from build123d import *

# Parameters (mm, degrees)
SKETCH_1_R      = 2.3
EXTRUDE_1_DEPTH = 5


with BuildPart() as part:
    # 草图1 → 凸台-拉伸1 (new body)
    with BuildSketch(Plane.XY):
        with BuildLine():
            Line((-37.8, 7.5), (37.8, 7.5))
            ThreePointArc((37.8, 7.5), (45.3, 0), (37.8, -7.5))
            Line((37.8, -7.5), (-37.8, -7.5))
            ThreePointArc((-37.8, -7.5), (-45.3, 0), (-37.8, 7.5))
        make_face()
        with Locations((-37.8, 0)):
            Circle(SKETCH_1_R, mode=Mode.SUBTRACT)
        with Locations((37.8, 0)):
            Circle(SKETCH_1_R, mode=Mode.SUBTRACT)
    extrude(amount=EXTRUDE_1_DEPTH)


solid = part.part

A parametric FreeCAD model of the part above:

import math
import FreeCAD as App
import Part
import Sketcher

V = App.Vector

doc = App.newDocument("Part")
body = doc.addObject("PartDesign::Body", "Body")

sketch1 = body.newObject("Sketcher::SketchObject", "Sketch")
sketch1.AttachmentSupport = (doc.getObject("XY_Plane"), [""])
sketch1.MapMode = "FlatFace"
sketch1.addGeometry(Part.LineSegment(V(37.8, 7.5, 0), V(-37.8, 7.5, 0)), False)
sketch1.addGeometry(Part.ArcOfCircle(Part.Circle(V(-37.8, 0, 0), V(0, 0, 1), 7.5), math.radians(90), math.radians(270)), False)
sketch1.addGeometry(Part.LineSegment(V(-37.8, -7.5, 0), V(37.8, -7.5, 0)), False)
sketch1.addGeometry(Part.ArcOfCircle(Part.Circle(V(37.8, 0, 0), V(0, 0, 1), 7.5), math.radians(-90), math.radians(90)), False)
sketch1.addGeometry(Part.Circle(V(37.8, 0, 0), V(0, 0, 1), 2.3), False)
sketch1.addGeometry(Part.Circle(V(-37.8, 0, 0), V(0, 0, 1), 2.3), False)
sketch1.addConstraint(Sketcher.Constraint("Tangent", 0, 2, 1, 1))
sketch1.addConstraint(Sketcher.Constraint("Tangent", 1, 2, 2, 1))
sketch1.addConstraint(Sketcher.Constraint("Tangent", 2, 2, 3, 1))
sketch1.addConstraint(Sketcher.Constraint("Tangent", 3, 2, 0, 1))
sketch1.addConstraint(Sketcher.Constraint("Horizontal", 0))
sketch1.addConstraint(Sketcher.Constraint("Horizontal", 2))
sketch1.addConstraint(Sketcher.Constraint("Coincident", 4, 3, 3, 3))
sketch1.addConstraint(Sketcher.Constraint("Coincident", 5, 3, 1, 3))
sketch1.addConstraint(Sketcher.Constraint("Equal", 4, 5))
sketch1.addConstraint(Sketcher.Constraint("Symmetric", 1, 3, 3, 3, -1, 1))
sketch1.addConstraint(Sketcher.Constraint("Diameter", 4, 4.6))
sketch1.addConstraint(Sketcher.Constraint("Radius", 1, 7.5))
sketch1.addConstraint(Sketcher.Constraint("DistanceX", 0, 2, 0, 1, 75.6))
pad1 = body.newObject("PartDesign::Pad", "Pad")
pad1.Profile = sketch1
pad1.Length = 5

doc.recompute()
